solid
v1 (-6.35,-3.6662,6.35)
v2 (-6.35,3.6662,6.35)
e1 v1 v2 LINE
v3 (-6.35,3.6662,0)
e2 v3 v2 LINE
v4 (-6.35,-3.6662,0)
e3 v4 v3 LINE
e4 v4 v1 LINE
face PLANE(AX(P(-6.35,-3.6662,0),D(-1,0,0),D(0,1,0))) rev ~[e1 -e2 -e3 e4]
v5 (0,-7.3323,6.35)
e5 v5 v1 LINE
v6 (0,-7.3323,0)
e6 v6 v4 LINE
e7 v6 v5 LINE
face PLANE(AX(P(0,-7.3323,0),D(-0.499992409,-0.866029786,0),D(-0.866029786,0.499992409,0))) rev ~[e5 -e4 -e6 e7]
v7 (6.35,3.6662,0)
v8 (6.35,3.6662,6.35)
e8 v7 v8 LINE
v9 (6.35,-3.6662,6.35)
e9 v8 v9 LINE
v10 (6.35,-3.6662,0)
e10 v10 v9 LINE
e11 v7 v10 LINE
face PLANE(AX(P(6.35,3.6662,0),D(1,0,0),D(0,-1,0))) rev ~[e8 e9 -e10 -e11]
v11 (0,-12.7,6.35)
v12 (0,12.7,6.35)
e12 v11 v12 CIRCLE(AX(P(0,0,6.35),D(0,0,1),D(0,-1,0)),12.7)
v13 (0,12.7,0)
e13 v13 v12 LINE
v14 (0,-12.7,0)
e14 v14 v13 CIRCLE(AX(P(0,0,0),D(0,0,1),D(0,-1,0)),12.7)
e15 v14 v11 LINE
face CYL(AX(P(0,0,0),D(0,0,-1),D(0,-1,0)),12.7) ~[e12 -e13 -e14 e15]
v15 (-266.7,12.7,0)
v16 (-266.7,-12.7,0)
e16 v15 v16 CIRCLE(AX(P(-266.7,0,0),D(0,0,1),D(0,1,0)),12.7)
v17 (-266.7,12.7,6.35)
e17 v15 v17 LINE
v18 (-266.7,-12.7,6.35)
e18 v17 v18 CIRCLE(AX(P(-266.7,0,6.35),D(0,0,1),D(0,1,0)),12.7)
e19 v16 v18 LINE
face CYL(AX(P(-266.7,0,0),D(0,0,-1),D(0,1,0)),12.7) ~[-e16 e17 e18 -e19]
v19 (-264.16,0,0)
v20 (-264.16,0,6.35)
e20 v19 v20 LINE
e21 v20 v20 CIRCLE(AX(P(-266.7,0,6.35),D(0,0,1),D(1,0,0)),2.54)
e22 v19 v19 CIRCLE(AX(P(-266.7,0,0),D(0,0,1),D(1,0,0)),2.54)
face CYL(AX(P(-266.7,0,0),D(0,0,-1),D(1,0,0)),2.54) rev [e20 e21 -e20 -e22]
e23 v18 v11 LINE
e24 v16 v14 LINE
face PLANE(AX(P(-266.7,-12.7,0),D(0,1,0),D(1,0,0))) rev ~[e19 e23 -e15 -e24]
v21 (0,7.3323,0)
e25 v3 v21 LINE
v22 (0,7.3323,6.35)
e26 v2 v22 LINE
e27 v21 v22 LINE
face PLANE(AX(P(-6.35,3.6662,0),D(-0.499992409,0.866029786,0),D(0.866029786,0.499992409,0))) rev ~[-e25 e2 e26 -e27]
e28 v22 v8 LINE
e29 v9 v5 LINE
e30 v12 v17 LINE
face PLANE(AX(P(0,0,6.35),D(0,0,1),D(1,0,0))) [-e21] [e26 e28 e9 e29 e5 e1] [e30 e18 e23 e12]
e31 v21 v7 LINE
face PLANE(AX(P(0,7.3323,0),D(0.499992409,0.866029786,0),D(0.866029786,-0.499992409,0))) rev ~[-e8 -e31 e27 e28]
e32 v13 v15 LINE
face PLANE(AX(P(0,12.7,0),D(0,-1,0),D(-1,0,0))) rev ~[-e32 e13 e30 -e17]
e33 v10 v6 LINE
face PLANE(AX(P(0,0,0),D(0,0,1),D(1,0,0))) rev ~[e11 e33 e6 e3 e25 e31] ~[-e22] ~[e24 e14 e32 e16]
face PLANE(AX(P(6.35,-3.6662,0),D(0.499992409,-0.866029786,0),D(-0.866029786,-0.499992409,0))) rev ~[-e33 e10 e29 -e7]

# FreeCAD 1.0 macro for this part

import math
import FreeCAD as App
import Part
import Sketcher

V = App.Vector
Q = App.Units.Quantity

doc = App.newDocument("Part")
body = doc.addObject("PartDesign::Body", "Body")

# Sketch on XY plane
sketch1 = doc.addObject("Sketcher::SketchObject", "Sketch")
body.addObject(sketch1)
sketch1.AttachmentSupport = (doc.XY_Plane, [""])
sketch1.MapMode = "FlatFace"
sketch1.addGeometry([
    Part.ArcOfCircle(Part.Circle(V(-266.7, 0, 0), V(0, 0, 1), 12.7), math.radians(90), math.radians(270)),  # 0
    Part.LineSegment(V(-266.7, -12.7, 0), V(0, -12.7, 0)),  # 1
    Part.ArcOfCircle(Part.Circle(V(0, 0, 0), V(0, 0, 1), 12.7), math.radians(-90), math.radians(90)),  # 2
    Part.LineSegment(V(0, 12.7, 0), V(-266.7, 12.7, 0)),  # 3
    Part.Circle(V(-266.7, 0, 0), V(0, 0, 1), 2.5),  # 4
    Part.LineSegment(V(-6.3, 3.7, 0), V(0, 7.3, 0)),  # 5
    Part.LineSegment(V(0, 7.3, 0), V(6.3, 3.7, 0)),  # 6
    Part.LineSegment(V(6.3, 3.7, 0), V(6.3, -3.7, 0)),  # 7
    Part.LineSegment(V(6.3, -3.7, 0), V(0, -7.3, 0)),  # 8
    Part.LineSegment(V(0, -7.3, 0), V(-6.3, -3.7, 0)),  # 9
    Part.LineSegment(V(-6.3, -3.7, 0), V(-6.3, 3.7, 0)),  # 10
], False)
sketch1.addConstraint([
    Sketcher.Constraint("Tangent", 0, 2, 1, 1),
    Sketcher.Constraint("Tangent", 1, 2, 2, 1),
    Sketcher.Constraint("Tangent", 2, 2, 3, 1),
    Sketcher.Constraint("Tangent", 3, 2, 0, 1),
    Sketcher.Constraint("Coincident", 5, 2, 6, 1),
    Sketcher.Constraint("Coincident", 6, 2, 7, 1),
    Sketcher.Constraint("Coincident", 7, 2, 8, 1),
    Sketcher.Constraint("Coincident", 8, 2, 9, 1),
    Sketcher.Constraint("Coincident", 9, 2, 10, 1),
    Sketcher.Constraint("Coincident", 10, 2, 5, 1),
    Sketcher.Constraint("Horizontal", 1),
    Sketcher.Constraint("Horizontal", 3),
    Sketcher.Constraint("Vertical", 7),
    Sketcher.Constraint("Vertical", 10),
    Sketcher.Constraint("Coincident", 2, 3, -1, 1),
    Sketcher.Constraint("Coincident", 4, 3, 0, 3),
    Sketcher.Constraint("Symmetric", 5, 2, 8, 2, -1, 1),
    Sketcher.Constraint("Symmetric", 6, 2, 9, 2, -1, 1),
    Sketcher.Constraint("PointOnObject", 5, 2, -2),
    Sketcher.Constraint("Parallel", 5, 8),
    Sketcher.Constraint("Horizontal", 7, 2, 9, 2),
    Sketcher.Constraint("Diameter", 4, Q("0.2 in")),
    Sketcher.Constraint("Radius", 0, Q("0.5 in")),
    Sketcher.Constraint("DistanceX", 1, 1, 1, 2, Q("10.5 in")),
    Sketcher.Constraint("DistanceX", 9, 2, 7, 2, Q("0.5 in")),
    Sketcher.Constraint("Angle", 5, Q("29.9995 deg")),
    Sketcher.Constraint("DistanceY", 7, 2, 5, 2, Q("0.433 in")),
])
pad1 = doc.addObject("PartDesign::Pad", "Pad")
body.addObject(pad1)
pad1.Profile = sketch1
pad1.Length = Q("0.25 in")

doc.recompute()
